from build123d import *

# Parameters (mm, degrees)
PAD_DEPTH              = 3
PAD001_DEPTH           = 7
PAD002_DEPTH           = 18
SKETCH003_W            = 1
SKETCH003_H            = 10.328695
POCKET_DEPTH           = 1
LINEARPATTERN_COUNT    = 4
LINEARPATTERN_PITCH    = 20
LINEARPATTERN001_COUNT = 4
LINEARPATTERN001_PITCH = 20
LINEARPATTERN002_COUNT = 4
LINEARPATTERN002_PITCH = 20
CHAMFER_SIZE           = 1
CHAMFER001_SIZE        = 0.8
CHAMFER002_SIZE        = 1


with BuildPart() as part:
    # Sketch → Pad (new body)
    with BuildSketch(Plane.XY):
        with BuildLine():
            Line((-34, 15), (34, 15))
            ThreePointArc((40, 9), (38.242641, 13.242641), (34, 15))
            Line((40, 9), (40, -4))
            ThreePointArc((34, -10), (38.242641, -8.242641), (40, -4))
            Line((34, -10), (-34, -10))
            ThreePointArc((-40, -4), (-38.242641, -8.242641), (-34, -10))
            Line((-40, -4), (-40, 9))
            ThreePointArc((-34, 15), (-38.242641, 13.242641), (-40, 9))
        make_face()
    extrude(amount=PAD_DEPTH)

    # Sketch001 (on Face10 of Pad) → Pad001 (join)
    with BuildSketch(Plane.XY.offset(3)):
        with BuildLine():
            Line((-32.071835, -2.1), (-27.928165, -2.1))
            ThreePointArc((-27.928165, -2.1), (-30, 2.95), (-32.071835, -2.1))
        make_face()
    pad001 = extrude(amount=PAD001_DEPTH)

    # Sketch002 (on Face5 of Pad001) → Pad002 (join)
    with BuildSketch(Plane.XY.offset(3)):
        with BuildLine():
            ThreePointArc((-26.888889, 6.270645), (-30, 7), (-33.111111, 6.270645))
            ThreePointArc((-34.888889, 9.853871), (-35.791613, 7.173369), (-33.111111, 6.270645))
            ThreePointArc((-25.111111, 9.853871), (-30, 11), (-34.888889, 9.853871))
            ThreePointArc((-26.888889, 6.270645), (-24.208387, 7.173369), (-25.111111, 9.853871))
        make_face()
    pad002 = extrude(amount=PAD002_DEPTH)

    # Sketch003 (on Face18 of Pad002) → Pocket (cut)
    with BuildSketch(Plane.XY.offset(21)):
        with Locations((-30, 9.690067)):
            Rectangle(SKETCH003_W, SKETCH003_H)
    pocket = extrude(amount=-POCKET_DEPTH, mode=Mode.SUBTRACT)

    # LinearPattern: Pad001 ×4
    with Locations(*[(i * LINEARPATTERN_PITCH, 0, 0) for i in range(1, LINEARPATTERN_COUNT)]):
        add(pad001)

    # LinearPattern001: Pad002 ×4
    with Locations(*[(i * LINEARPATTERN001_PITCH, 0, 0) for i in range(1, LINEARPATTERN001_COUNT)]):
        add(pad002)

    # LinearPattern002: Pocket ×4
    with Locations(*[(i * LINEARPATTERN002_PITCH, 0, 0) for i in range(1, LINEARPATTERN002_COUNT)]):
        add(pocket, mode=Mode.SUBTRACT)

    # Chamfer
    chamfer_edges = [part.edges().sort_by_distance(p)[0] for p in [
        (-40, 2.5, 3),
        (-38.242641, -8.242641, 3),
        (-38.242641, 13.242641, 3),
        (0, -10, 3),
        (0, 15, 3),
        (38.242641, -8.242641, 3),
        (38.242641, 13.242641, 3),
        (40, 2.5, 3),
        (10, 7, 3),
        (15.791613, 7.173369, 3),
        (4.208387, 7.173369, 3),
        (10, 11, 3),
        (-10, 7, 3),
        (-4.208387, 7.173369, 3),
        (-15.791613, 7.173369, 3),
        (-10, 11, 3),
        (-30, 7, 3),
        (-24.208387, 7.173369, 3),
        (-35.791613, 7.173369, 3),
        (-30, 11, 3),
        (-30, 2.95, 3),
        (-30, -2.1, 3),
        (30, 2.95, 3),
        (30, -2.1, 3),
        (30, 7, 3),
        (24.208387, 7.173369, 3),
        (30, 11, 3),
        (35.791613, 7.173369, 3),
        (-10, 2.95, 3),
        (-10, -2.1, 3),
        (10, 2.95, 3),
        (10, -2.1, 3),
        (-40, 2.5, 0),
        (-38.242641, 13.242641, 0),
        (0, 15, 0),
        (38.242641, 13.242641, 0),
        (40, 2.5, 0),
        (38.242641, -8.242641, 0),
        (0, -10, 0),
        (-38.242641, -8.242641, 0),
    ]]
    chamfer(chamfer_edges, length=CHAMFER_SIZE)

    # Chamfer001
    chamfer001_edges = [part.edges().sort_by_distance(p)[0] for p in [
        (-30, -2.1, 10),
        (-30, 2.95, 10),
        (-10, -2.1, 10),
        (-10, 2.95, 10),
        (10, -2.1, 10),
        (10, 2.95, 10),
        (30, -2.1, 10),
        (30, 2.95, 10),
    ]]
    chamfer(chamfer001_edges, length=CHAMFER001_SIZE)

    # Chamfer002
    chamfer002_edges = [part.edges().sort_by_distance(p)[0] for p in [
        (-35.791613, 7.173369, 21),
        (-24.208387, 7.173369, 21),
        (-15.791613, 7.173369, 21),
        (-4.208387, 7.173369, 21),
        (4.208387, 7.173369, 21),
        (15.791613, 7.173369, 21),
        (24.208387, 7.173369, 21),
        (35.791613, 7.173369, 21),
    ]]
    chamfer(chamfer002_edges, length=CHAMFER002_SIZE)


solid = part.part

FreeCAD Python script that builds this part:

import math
import FreeCAD as App
import Part
import Sketcher
from FreeCAD import Vector


def edges_at(feature, points):
    """Names of the edges that pass closest to the given points."""
    edges = feature.Shape.Edges
    near = lambda p: min(range(len(edges)), key=lambda i: edges[i].distToShape(Part.Vertex(*p))[0])
    return sorted({f"Edge{near(p) + 1}" for p in points})


def add_polygon(sketch, points):
    """Adds a closed chain of lines whose ends are joined by coincident constraints."""
    first, n = sketch.GeometryCount, len(points)
    for a, b in zip(points, points[1:] + points[:1]):
        sketch.addGeometry(Part.LineSegment(App.Vector(*a, 0), App.Vector(*b, 0)), False)
    for i in range(n):
        sketch.addConstraint(Sketcher.Constraint("Coincident", first + i, 2, first + (i + 1) % n, 1))

doc = App.newDocument("Part")
body = doc.addObject("PartDesign::Body", "Body")

# Sketch on XY plane
sketch1 = body.newObject("Sketcher::SketchObject", "Sketch")
sketch1.AttachmentSupport = (doc.getObject("XY_Plane"), [""])
sketch1.MapMode = "FlatFace"
sketch1.addGeometry([
    Part.LineSegment(Vector(34, 15, 0), Vector(-34, 15, 0)),  # 0
    Part.ArcOfCircle(Part.Circle(Vector(-34, 9, 0), Vector(0, 0, 1), 6), math.radians(90), math.radians(180)),  # 1
    Part.LineSegment(Vector(-40, 9, 0), Vector(-40, -4, 0)),  # 2
    Part.ArcOfCircle(Part.Circle(Vector(-34, -4, 0), Vector(0, 0, 1), 6), math.radians(180), math.radians(270)),  # 3
    Part.LineSegment(Vector(-34, -10, 0), Vector(34, -10, 0)),  # 4
    Part.ArcOfCircle(Part.Circle(Vector(34, -4, 0), Vector(0, 0, 1), 6), math.radians(-90), math.radians(0)),  # 5
    Part.LineSegment(Vector(40, -4, 0), Vector(40, 9, 0)),  # 6
    Part.ArcOfCircle(Part.Circle(Vector(34, 9, 0), Vector(0, 0, 1), 6), math.radians(0), math.radians(90)),  # 7
], False)
sketch1.addConstraint([
    Sketcher.Constraint("Tangent", 0, 2, 1, 1),
    Sketcher.Constraint("Tangent", 1, 2, 2, 1),
    Sketcher.Constraint("Tangent", 2, 2, 3, 1),
    Sketcher.Constraint("Tangent", 3, 2, 4, 1),
    Sketcher.Constraint("Tangent", 4, 2, 5, 1),
    Sketcher.Constraint("Tangent", 5, 2, 6, 1),
    Sketcher.Constraint("Tangent", 6, 2, 7, 1),
    Sketcher.Constraint("Tangent", 7, 2, 0, 1),
    Sketcher.Constraint("Horizontal", 0),
    Sketcher.Constraint("Vertical", 2),
    Sketcher.Constraint("Horizontal", 4),
    Sketcher.Constraint("Vertical", 6),
    Sketcher.Constraint("Equal", 1, 3),
    Sketcher.Constraint("Equal", 3, 5),
    Sketcher.Constraint("Equal", 5, 7),
    Sketcher.Constraint("Radius", 1, 5.999999),
    Sketcher.Constraint("DistanceX", 0, 2, 0, 1, 68.0),
    Sketcher.Constraint("DistanceY", 2, 2, 2, 1, 13.0),
    Sketcher.Constraint("DistanceX", 1, 3, -1, 1, 34.000001),
    Sketcher.Constraint("DistanceY", -1, 1, 1, 3, 9.000001),
])
pad1 = body.newObject("PartDesign::Pad", "Pad")
pad1.Profile = sketch1
pad1.Length = 3

# Sketch on XY plane
sketch2 = body.newObject("Sketcher::SketchObject", "Sketch001")
sketch2.AttachmentSupport = (doc.getObject("XY_Plane"), [""])
sketch2.MapMode = "FlatFace"
sketch2.AttachmentOffset = App.Placement(Vector(0, 0, 3), App.Rotation())
sketch2.addGeometry([
    Part.LineSegment(Vector(-32.1, -2.1, 0), Vector(-27.9, -2.1, 0)),
    Part.ArcOfCircle(Part.Circle(Vector(-30, 0, 0), Vector(0, 0, 1), 3), math.radians(-45), math.radians(225)),
], False)
sketch2.addConstraint([
    Sketcher.Constraint("Coincident", 0, 1, 1, 2),
    Sketcher.Constraint("Coincident", 1, 1, 0, 2),
    Sketcher.Constraint("Horizontal", 0),
    Sketcher.Constraint("PointOnObject", 1, 3, -1),
    Sketcher.Constraint("Radius", 1, 2.95),
    Sketcher.Constraint("DistanceX", 1, 3, -1, 1, 30.0),
    Sketcher.Constraint("DistanceY", 0, 1, -1, 1, 2.1),
])
pad2 = body.newObject("PartDesign::Pad", "Pad001")
pad2.Profile = sketch2
pad2.Length = 7

# Sketch on XY plane
sketch3 = body.newObject("Sketcher::SketchObject", "Sketch002")
sketch3.AttachmentSupport = (doc.getObject("XY_Plane"), [""])
sketch3.MapMode = "FlatFace"
sketch3.AttachmentOffset = App.Placement(Vector(0, 0, 3), App.Rotation())
sketch3.addGeometry([
    Part.ArcOfCircle(Part.Circle(Vector(-30, 0, 0), Vector(0, 0, 1), 7), math.radians(64), math.radians(116)),
    Part.ArcOfCircle(Part.Circle(Vector(-26, 8.1, 0), Vector(0, 0, 1), 2), math.radians(-116), math.radians(64)),
    Part.ArcOfCircle(Part.Circle(Vector(-30, 0, 0), Vector(0, 0, 1), 11), math.radians(64), math.radians(116)),
    Part.ArcOfCircle(Part.Circle(Vector(-34, 8.1, 0), Vector(0, 0, 1), 2), math.radians(116), math.radians(296)),
], False)
sketch3.addConstraint([
    Sketcher.Constraint("Tangent", 0, 1, 1, 1),
    Sketcher.Constraint("Tangent", 1, 2, 2, 1),
    Sketcher.Constraint("Tangent", 2, 2, 3, 1),
    Sketcher.Constraint("Tangent", 3, 2, 0, 2),
    Sketcher.Constraint("Coincident", 2, 3, 0, 3),
    Sketcher.Constraint("PointOnObject", 0, 3, -1),
    Sketcher.Constraint("Horizontal", 1, 3, 3, 3),
    Sketcher.Constraint("Radius", 0, 7.0),
    Sketcher.Constraint("Radius", 1, 2.0),
    Sketcher.Constraint("DistanceX", 0, 3, -1, 1, 30.0),
    Sketcher.Constraint("DistanceX", 1, 3, -1, 1, 26.0),
])
pad3 = body.newObject("PartDesign::Pad", "Pad002")
pad3.Profile = sketch3
pad3.Length = 18

# Sketch on XY plane
sketch4 = body.newObject("Sketcher::SketchObject", "Sketch003")
sketch4.AttachmentSupport = (doc.getObject("XY_Plane"), [""])
sketch4.MapMode = "FlatFace"
sketch4.AttachmentOffset = App.Placement(Vector(0, 0, 21), App.Rotation())
add_polygon(sketch4, [(-30.5, 14.9), (-30.5, 4.5), (-29.5, 4.5), (-29.5, 14.9)])  # lines 0-3
sketch4.addConstraint([
    Sketcher.Constraint("Vertical", 0),
    Sketcher.Constraint("Horizontal", 1),
    Sketcher.Constraint("Vertical", 2),
    Sketcher.Constraint("Horizontal", 3),
    Sketcher.Constraint("DistanceX", 1, 1, 1, 2, 1.0),
    Sketcher.Constraint("DistanceX", 0, 2, -1, 1, 30.5),
    Sketcher.Constraint("DistanceY", 0, 2, 0, 1, 10.328695),
    Sketcher.Constraint("DistanceY", -1, 1, 0, 2, 4.52572),
])
pocket1 = body.newObject("PartDesign::Pocket", "Pocket")
pocket1.Profile = sketch4
pocket1.Length = 1
doc.recompute()

linearpattern = body.newObject("PartDesign::LinearPattern", "LinearPattern")
linearpattern.Originals = [pad2]
linearpattern.Direction = (doc.getObject("X_Axis"), [""])
linearpattern.Mode = "offset"
linearpattern.Offset = 20
linearpattern.Occurrences = 4
body.Tip = linearpattern
doc.recompute()

linearpattern2 = body.newObject("PartDesign::LinearPattern", "LinearPattern001")
linearpattern2.Originals = [pad3]
linearpattern2.Direction = (doc.getObject("X_Axis"), [""])
linearpattern2.Mode = "offset"
linearpattern2.Offset = 20
linearpattern2.Occurrences = 4
body.Tip = linearpattern2
doc.recompute()

linearpattern3 = body.newObject("PartDesign::LinearPattern", "LinearPattern002")
linearpattern3.Originals = [pocket1]
linearpattern3.Direction = (doc.getObject("X_Axis"), [""])
linearpattern3.Mode = "offset"
linearpattern3.Offset = 20
linearpattern3.Occurrences = 4
body.Tip = linearpattern3
doc.recompute()

chamfer = body.newObject("PartDesign::Chamfer", "Chamfer")
chamfer.Base = (linearpattern3, edges_at(linearpattern3, [
    (-40, 2.5, 3),
    (-38.243, -8.243, 3),
    (-38.243, 13.243, 3),
    (0, -10, 3),
    (0, 15, 3),
    (38.243, -8.243, 3),
    (38.243, 13.243, 3),
    (40, 2.5, 3),
    (10, 7, 3),
    (15.792, 7.173, 3),
    (4.208, 7.173, 3),
    (10, 11, 3),
    (-10, 7, 3),
    (-4.208, 7.173, 3),
    (-15.792, 7.173, 3),
    (-10, 11, 3),
    (-30, 7, 3),
    (-24.208, 7.173, 3),
    (-35.792, 7.173, 3),
    (-30, 11, 3),
    (-30, 2.95, 3),
    (-30, -2.1, 3),
    (30, 2.95, 3),
    (30, -2.1, 3),
    (30, 7, 3),
    (24.208, 7.173, 3),
    (30, 11, 3),
    (35.792, 7.173, 3),
    (-10, 2.95, 3),
    (-10, -2.1, 3),
    (10, 2.95, 3),
    (10, -2.1, 3),
    (-40, 2.5, 0),
    (-38.243, 13.243, 0),
    (0, 15, 0),
    (38.243, 13.243, 0),
    (40, 2.5, 0),
    (38.243, -8.243, 0),
    (0, -10, 0),
    (-38.243, -8.243, 0),
]))
chamfer.Size = 1
doc.recompute()

chamfer2 = body.newObject("PartDesign::Chamfer", "Chamfer001")
chamfer2.Base = (chamfer, edges_at(chamfer, [
    (-30, -2.1, 10),
    (-30, 2.95, 10),
    (-10, -2.1, 10),
    (-10, 2.95, 10),
    (10, -2.1, 10),
    (10, 2.95, 10),
    (30, -2.1, 10),
    (30, 2.95, 10),
]))
chamfer2.Size = 0.8
doc.recompute()

chamfer3 = body.newObject("PartDesign::Chamfer", "Chamfer002")
chamfer3.Base = (chamfer2, edges_at(chamfer2, [
    (-35.792, 7.173, 21),
    (-24.208, 7.173, 21),
    (-15.792, 7.173, 21),
    (-4.208, 7.173, 21),
    (4.208, 7.173, 21),
    (15.792, 7.173, 21),
    (24.208, 7.173, 21),
    (35.792, 7.173, 21),
]))
chamfer3.Size = 1

doc.recompute()
